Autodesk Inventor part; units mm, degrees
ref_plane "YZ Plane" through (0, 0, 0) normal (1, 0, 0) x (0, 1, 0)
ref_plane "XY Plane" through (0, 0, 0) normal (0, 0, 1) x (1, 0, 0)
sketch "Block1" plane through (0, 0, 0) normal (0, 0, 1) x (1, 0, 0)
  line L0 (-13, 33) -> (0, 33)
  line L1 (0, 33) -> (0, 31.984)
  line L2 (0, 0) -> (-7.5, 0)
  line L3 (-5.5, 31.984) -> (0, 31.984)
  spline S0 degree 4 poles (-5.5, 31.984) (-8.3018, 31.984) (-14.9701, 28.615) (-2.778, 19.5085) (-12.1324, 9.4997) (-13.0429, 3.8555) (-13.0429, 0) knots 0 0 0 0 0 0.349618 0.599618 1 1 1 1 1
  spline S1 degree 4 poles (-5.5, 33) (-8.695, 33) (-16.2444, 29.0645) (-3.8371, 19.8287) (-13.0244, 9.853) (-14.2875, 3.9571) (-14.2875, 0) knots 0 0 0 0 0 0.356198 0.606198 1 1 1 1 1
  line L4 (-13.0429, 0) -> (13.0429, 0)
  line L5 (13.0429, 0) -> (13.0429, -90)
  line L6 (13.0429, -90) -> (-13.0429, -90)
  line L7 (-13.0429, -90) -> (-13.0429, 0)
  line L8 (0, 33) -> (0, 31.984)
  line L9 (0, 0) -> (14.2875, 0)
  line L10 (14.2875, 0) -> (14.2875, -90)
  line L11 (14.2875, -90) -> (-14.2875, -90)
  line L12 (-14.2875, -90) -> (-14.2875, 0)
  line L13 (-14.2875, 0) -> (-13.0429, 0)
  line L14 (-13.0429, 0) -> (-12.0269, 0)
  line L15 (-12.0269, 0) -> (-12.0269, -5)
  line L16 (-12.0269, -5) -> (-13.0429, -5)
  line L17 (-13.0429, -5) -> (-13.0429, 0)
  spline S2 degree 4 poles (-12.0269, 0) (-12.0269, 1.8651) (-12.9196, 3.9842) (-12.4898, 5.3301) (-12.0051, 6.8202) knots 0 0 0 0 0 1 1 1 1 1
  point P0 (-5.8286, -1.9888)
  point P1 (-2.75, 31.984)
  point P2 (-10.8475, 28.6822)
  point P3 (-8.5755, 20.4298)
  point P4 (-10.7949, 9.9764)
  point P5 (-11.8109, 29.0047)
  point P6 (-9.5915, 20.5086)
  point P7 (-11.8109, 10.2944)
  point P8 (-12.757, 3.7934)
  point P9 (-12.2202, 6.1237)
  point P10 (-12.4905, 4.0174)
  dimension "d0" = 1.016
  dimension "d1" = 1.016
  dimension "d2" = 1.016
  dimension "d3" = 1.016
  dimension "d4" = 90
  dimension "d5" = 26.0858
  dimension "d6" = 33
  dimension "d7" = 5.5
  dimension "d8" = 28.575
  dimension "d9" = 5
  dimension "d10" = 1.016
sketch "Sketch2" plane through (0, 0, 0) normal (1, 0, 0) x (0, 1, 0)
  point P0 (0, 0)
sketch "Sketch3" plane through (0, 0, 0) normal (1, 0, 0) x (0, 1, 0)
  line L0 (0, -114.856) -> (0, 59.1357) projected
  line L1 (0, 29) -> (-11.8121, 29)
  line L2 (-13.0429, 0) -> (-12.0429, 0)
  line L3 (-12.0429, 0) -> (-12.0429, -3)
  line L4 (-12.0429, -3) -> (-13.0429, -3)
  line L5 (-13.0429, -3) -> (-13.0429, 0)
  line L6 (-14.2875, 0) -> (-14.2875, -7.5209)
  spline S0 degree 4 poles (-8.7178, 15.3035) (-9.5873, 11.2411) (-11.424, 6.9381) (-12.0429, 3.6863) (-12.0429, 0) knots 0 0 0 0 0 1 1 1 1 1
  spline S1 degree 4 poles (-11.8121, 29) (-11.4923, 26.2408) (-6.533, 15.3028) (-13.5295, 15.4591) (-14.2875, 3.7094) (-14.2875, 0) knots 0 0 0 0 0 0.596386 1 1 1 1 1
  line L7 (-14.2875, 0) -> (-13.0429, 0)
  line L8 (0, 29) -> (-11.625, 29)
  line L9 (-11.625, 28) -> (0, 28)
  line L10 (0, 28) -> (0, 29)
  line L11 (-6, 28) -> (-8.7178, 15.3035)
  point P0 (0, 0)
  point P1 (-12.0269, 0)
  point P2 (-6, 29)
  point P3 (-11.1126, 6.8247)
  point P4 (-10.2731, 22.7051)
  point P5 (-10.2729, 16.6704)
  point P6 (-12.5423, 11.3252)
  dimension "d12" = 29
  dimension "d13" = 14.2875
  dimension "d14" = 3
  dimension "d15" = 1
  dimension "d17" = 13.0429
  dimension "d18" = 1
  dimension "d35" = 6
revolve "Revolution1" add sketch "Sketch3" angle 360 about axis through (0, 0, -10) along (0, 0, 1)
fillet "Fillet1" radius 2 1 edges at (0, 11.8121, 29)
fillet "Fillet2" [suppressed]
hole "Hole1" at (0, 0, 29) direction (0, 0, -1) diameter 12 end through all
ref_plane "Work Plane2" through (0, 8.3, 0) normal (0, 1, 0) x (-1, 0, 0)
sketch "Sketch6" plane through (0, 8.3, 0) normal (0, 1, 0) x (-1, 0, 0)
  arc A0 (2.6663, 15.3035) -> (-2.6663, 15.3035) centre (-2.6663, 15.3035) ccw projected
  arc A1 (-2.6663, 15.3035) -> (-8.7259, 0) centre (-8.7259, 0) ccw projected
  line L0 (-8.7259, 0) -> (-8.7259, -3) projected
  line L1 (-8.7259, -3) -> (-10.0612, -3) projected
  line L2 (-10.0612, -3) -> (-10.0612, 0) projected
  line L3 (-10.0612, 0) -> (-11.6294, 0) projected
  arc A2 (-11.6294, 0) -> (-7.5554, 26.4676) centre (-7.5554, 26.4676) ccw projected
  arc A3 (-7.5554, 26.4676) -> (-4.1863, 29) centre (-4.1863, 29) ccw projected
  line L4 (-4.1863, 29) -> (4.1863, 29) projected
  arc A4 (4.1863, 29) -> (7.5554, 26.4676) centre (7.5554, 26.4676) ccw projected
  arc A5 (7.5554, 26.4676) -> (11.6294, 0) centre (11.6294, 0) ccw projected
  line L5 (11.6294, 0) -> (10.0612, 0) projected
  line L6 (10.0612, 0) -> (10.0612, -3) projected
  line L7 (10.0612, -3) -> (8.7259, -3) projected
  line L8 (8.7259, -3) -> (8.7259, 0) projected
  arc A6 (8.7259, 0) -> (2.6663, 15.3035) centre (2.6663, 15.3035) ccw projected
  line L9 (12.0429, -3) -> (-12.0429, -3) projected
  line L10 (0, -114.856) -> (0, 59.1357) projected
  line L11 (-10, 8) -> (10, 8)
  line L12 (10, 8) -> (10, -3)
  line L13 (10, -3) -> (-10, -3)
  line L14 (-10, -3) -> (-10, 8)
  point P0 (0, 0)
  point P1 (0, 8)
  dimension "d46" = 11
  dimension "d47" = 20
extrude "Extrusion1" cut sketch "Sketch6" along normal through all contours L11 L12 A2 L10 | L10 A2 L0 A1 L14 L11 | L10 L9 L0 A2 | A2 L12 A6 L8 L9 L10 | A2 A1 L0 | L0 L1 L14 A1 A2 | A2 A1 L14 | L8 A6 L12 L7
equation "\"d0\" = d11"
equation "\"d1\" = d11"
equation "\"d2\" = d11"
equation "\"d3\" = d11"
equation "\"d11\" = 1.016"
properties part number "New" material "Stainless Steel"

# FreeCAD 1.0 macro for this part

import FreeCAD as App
import Part
import Sketcher


def edges_at(feature, points):
    """Names of the edges that pass closest to the given points."""
    edges = feature.Shape.Edges
    near = lambda p: min(range(len(edges)), key=lambda i: edges[i].distToShape(Part.Vertex(*p))[0])
    return sorted({f"Edge{near(p) + 1}" for p in points})


def add_polygon(sketch, points):
    """Adds a closed chain of lines whose ends are joined by coincident constraints."""
    first, n = sketch.GeometryCount, len(points)
    for a, b in zip(points, points[1:] + points[:1]):
        sketch.addGeometry(Part.LineSegment(App.Vector(*a, 0), App.Vector(*b, 0)), False)
    for i in range(n):
        sketch.addConstraint(Sketcher.Constraint("Coincident", first + i, 2, first + (i + 1) % n, 1))

doc = App.newDocument("Part")
params = doc.addObject("Spreadsheet::Sheet", "Params")
for row, (alias, value) in enumerate([
    ("sketch1_width", "6 mm"),
    ("sketch1_width2", "1 mm"),
    ("sketch1_height", "3 mm"),
    ("revolution_angle", "360 deg"),
    ("fillet_radius", "2 mm"),
    ("sketch2_diameter", "12 mm"),
    ("hole_diameter", "12 mm"),
    ("sketch3_width", "20 mm"),
    ("sketch3_height", "11 mm"),
], start=1):
    params.set(f"A{row}", alias)
    params.set(f"B{row}", "=" + value)
    params.setAlias(f"B{row}", alias)

body = doc.addObject("PartDesign::Body", "Body")

sketch1 = body.newObject("Sketcher::SketchObject", "Sketch")
sketch1.AttachmentSupport = (doc.getObject("YZ_Plane"), [""])
sketch1.MapMode = "FlatFace"
sketch1.addGeometry(Part.LineSegment(App.Vector(-6, 28, 0), App.Vector(0, 28, 0)), False)
sketch1.addGeometry(Part.LineSegment(App.Vector(0, 28, 0), App.Vector(0, 29, 0)), False)
sketch1.addGeometry(Part.LineSegment(App.Vector(0, 29, 0), App.Vector(-11.8121, 29, 0)), False)
sketch1.addGeometry(Part.BSplineCurve([App.Vector(-11.8121, 29, 0), App.Vector(-11.786794, 28.781658, 0), App.Vector(-11.744969, 28.539746, 0), App.Vector(-11.690041, 28.278084, 0), App.Vector(-11.625001, 28, 0)], [5, 5], [0, 0.04719337], False, 4, [1, 1, 1, 1, 1], False), False)
sketch1.addGeometry(Part.BSplineCurve([App.Vector(-11.625001, 28, 0), App.Vector(-10.868134, 24.763907, 0), App.Vector(-7.179482, 15.291035, 0), App.Vector(-13.565273, 14.904592, 0), App.Vector(-14.2875, 3.7094, 0), App.Vector(-14.2875, 0, 0)], [5, 1, 5], [0.04719337, 0.596386, 1], False, 4, [1, 1, 1, 1, 1, 1], False), False)
sketch1.addGeometry(Part.LineSegment(App.Vector(-14.2875, 0, 0), App.Vector(-13.0429, 0, 0)), False)
sketch1.addGeometry(Part.LineSegment(App.Vector(-13.0429, 0, 0), App.Vector(-13.0429, -3, 0)), False)
sketch1.addGeometry(Part.LineSegment(App.Vector(-13.0429, -3, 0), App.Vector(-12.0429, -3, 0)), False)
sketch1.addGeometry(Part.LineSegment(App.Vector(-12.0429, -3, 0), App.Vector(-12.0429, 0, 0)), False)
sketch1.addGeometry(Part.BSplineCurve([App.Vector(-8.7178, 15.3035, 0), App.Vector(-9.5873, 11.2411, 0), App.Vector(-11.424, 6.9381, 0), App.Vector(-12.0429, 3.6863, 0), App.Vector(-12.0429, 0, 0)], [5, 5], [0, 1], False, 4, [1, 1, 1, 1, 1], False), False)
sketch1.addGeometry(Part.LineSegment(App.Vector(-8.7178, 15.3035, 0), App.Vector(-6, 28, 0)), False)
sketch1.addConstraint(Sketcher.Constraint("Block", 3))
sketch1.addConstraint(Sketcher.Constraint("Block", 4))
sketch1.addConstraint(Sketcher.Constraint("Block", 9))
sketch1.addConstraint(Sketcher.Constraint("Coincident", 0, 2, 1, 1))
sketch1.addConstraint(Sketcher.Constraint("Coincident", 1, 2, 2, 1))
sketch1.addConstraint(Sketcher.Constraint("Coincident", 2, 2, 3, 1))
sketch1.addConstraint(Sketcher.Constraint("Coincident", 4, 2, 5, 1))
sketch1.addConstraint(Sketcher.Constraint("Coincident", 5, 2, 6, 1))
sketch1.addConstraint(Sketcher.Constraint("Coincident", 6, 2, 7, 1))
sketch1.addConstraint(Sketcher.Constraint("Coincident", 7, 2, 8, 1))
sketch1.addConstraint(Sketcher.Constraint("Coincident", 8, 2, 9, 2))
sketch1.addConstraint(Sketcher.Constraint("Coincident", 9, 1, 10, 1))
sketch1.addConstraint(Sketcher.Constraint("Coincident", 10, 2, 0, 1))
sketch1.addConstraint(Sketcher.Constraint("Horizontal", 0))
sketch1.addConstraint(Sketcher.Constraint("Vertical", 1))
sketch1.addConstraint(Sketcher.Constraint("Horizontal", 2))
sketch1.addConstraint(Sketcher.Constraint("Horizontal", 5))
sketch1.addConstraint(Sketcher.Constraint("Vertical", 6))
sketch1.addConstraint(Sketcher.Constraint("Horizontal", 7))
sketch1.addConstraint(Sketcher.Constraint("Vertical", 8))
sketch1.addConstraint(Sketcher.Constraint("PointOnObject", 0, 2, -2))
sketch1.addConstraint(Sketcher.Constraint("Equal", 7, 1))
sketch1.addConstraint(Sketcher.Constraint("DistanceX", 0, 1, 0, 2, 6.0))
sketch1.addConstraint(Sketcher.Constraint("DistanceX", 7, 1, 7, 2, 1.0))
sketch1.addConstraint(Sketcher.Constraint("DistanceY", 6, 2, 6, 1, 3.0))
sketch1.setExpression("Constraints[22]", "Params.sketch1_width")
sketch1.setExpression("Constraints[23]", "Params.sketch1_width2")
sketch1.setExpression("Constraints[24]", "Params.sketch1_height")
revolution = body.newObject("PartDesign::Revolution", "Revolution")
revolution.Profile = sketch1
revolution.ReferenceAxis = (sketch1, ["V_Axis"])
revolution.setExpression("Angle", "Params.revolution_angle")
doc.recompute()

fillet = body.newObject("PartDesign::Fillet", "Fillet")
fillet.Base = (revolution, edges_at(revolution, [(0, 11.812, 29)]))
fillet.setExpression("Radius", "Params.fillet_radius")

sketch2 = body.newObject("Sketcher::SketchObject", "Sketch001")
sketch2.AttachmentSupport = (doc.getObject("XY_Plane"), [""])
sketch2.MapMode = "FlatFace"
sketch2.AttachmentOffset = App.Placement(App.Vector(0, 0, 29), App.Rotation())
sketch2.addGeometry(Part.Circle(App.Vector(0, 0, 0), App.Vector(0, 0, 1), 6), False)
sketch2.addConstraint(Sketcher.Constraint("Coincident", 0, 3, -1, 1))
sketch2.addConstraint(Sketcher.Constraint("Diameter", 0, 12.0))
sketch2.setExpression("Constraints[1]", "Params.sketch2_diameter")
doc.recompute()
hole = body.newObject("PartDesign::Hole", "Hole")
hole.Profile = sketch2
hole.ThreadType = "None"
hole.setExpression("Diameter", "Params.hole_diameter")
hole.DepthType = "ThroughAll"

sketch3 = body.newObject("Sketcher::SketchObject", "Sketch002")
sketch3.AttachmentSupport = (doc.getObject("XZ_Plane"), [""])
sketch3.MapMode = "FlatFace"
sketch3.AttachmentOffset = App.Placement(App.Vector(0, 0, -8.3), App.Rotation())
add_polygon(sketch3, [(-10, 8), (10, 8), (10, -3), (-10, -3)])
sketch3.addConstraint(Sketcher.Constraint("Horizontal", 0))
sketch3.addConstraint(Sketcher.Constraint("Vertical", 1))
sketch3.addConstraint(Sketcher.Constraint("Horizontal", 2))
sketch3.addConstraint(Sketcher.Constraint("Vertical", 3))
sketch3.addConstraint(Sketcher.Constraint("DistanceX", 0, 1, 0, 2, 20.0))
sketch3.addConstraint(Sketcher.Constraint("DistanceY", 1, 2, 1, 1, 11.0))
sketch3.addConstraint(Sketcher.Constraint("DistanceX", -1, 1, 0, 2, 10.0))
sketch3.addConstraint(Sketcher.Constraint("DistanceY", -1, 1, 0, 2, 8.0))
sketch3.setExpression("Constraints[8]", "Params.sketch3_width")
sketch3.setExpression("Constraints[9]", "Params.sketch3_height")
pocket1 = body.newObject("PartDesign::Pocket", "Pocket")
pocket1.Profile = sketch3
pocket1.Type = "ThroughAll"

doc.recompute()
